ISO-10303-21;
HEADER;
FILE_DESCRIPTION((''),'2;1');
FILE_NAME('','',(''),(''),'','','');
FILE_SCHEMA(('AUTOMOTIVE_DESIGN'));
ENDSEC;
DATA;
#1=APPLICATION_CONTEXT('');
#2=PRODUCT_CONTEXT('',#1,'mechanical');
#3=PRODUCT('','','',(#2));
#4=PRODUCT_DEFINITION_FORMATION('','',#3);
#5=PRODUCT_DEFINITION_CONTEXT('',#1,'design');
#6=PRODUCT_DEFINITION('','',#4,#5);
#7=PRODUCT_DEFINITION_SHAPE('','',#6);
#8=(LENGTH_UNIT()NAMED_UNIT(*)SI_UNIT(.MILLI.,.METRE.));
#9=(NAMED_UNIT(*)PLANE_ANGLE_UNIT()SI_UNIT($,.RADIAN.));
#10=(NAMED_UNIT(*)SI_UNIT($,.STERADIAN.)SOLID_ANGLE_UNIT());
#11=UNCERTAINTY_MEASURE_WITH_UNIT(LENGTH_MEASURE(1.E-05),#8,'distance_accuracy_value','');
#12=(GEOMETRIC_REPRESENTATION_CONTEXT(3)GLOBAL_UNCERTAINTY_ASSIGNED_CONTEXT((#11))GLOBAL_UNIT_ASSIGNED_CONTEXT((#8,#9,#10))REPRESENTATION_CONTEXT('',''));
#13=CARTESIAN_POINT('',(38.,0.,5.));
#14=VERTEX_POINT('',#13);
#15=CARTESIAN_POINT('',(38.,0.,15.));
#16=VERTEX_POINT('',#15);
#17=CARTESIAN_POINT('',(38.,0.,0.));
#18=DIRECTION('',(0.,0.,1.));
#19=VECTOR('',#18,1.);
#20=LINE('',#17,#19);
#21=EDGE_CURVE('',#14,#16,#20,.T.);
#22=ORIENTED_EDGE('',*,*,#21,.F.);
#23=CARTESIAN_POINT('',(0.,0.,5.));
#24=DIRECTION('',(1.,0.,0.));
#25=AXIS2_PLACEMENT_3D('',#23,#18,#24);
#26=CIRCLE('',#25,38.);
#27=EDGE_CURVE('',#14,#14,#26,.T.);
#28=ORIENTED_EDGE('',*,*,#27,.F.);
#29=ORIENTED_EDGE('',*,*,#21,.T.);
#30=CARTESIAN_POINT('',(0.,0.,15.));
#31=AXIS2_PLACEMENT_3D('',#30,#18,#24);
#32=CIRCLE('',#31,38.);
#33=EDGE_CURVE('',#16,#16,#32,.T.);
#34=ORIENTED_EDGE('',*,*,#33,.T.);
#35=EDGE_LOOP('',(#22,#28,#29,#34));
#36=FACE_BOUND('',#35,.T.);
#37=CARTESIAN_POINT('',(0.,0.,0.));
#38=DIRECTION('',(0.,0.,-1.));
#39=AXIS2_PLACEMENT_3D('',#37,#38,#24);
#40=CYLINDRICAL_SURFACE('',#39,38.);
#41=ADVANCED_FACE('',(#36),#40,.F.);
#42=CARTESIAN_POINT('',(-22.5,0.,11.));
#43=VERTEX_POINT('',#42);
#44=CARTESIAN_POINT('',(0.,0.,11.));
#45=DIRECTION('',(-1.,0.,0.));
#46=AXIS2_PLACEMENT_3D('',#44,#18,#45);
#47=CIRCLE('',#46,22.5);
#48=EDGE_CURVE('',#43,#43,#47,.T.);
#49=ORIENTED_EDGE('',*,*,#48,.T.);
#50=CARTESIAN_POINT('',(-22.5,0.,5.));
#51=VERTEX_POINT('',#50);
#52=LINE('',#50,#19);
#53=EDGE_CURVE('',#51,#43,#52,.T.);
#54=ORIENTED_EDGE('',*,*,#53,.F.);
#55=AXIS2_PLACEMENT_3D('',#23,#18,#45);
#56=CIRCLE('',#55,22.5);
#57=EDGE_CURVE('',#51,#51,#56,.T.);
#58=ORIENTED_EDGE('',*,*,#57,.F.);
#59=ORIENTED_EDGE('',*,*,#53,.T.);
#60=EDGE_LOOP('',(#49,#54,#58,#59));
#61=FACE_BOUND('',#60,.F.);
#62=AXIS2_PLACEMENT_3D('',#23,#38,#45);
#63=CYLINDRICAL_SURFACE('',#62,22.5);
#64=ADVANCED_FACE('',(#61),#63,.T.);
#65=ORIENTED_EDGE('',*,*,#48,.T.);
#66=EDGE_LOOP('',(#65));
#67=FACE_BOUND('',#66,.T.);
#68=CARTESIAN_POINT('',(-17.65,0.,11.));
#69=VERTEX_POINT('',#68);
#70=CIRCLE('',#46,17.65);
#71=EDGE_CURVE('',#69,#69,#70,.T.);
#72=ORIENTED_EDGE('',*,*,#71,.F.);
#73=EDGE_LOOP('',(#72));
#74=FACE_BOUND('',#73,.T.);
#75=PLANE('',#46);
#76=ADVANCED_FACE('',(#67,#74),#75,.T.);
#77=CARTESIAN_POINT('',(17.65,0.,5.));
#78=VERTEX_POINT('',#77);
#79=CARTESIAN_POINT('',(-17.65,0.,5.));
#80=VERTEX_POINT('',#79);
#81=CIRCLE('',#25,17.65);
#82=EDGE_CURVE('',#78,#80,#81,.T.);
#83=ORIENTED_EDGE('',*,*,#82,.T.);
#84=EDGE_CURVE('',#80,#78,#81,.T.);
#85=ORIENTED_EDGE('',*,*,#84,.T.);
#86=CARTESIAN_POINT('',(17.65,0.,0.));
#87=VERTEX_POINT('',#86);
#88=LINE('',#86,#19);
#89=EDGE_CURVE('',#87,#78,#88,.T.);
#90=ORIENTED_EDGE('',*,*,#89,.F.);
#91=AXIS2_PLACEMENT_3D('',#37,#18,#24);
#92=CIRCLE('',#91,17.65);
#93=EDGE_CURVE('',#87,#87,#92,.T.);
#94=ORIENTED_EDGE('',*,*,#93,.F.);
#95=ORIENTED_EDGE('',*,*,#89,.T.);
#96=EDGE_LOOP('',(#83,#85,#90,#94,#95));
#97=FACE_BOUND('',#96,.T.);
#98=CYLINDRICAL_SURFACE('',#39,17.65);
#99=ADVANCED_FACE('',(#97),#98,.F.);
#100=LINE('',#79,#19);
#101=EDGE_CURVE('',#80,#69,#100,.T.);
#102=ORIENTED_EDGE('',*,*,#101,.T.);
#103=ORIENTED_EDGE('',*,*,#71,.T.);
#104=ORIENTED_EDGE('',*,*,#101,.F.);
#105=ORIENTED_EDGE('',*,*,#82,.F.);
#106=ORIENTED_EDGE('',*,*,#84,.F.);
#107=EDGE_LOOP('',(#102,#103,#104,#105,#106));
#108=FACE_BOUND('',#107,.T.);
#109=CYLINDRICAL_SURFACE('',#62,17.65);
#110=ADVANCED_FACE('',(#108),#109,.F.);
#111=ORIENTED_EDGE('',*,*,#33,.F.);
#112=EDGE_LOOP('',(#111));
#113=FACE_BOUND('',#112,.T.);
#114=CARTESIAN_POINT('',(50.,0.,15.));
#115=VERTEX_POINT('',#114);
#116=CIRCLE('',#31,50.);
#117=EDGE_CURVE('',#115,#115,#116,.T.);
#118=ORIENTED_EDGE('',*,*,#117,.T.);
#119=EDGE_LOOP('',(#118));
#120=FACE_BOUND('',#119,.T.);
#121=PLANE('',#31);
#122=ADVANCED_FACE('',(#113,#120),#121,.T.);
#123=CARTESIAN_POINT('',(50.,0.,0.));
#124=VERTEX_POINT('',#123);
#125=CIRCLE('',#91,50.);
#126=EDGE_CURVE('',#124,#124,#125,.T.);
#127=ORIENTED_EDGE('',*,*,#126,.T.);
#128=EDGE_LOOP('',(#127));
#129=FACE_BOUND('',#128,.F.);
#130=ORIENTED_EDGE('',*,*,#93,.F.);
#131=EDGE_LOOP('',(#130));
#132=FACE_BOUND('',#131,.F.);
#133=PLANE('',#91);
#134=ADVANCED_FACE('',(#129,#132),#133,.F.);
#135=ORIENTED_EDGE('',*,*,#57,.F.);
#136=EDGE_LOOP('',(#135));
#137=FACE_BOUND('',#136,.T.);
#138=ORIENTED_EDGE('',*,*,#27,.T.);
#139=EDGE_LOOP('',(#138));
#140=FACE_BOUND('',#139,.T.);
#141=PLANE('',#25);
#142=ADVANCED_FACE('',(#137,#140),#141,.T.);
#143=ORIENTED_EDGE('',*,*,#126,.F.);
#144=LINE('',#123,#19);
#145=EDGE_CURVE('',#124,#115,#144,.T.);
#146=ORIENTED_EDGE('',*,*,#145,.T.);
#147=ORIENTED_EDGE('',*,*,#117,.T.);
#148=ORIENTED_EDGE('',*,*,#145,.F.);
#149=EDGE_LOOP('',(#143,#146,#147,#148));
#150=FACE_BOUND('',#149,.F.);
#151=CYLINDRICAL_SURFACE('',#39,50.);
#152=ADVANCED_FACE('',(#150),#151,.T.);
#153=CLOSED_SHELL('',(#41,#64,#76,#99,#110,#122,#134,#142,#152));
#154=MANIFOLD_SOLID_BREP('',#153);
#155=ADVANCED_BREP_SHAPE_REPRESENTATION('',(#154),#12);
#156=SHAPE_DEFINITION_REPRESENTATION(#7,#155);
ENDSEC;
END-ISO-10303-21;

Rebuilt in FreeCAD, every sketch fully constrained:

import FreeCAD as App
import Part
import Sketcher

V = App.Vector

doc = App.newDocument("Part")
params = doc.addObject("Spreadsheet::Sheet", "Params")
for row, (alias, value) in enumerate([
    ("sketch1_diameter", "76 mm"),
    ("sketch1_diameter2", "35.3 mm"),
    ("pad1_length", "5 mm"),
    ("sketch2_diameter", "100 mm"),
    ("sketch2_diameter2", "76 mm"),
    ("pad2_length", "15 mm"),
    ("sketch3_diameter", "45 mm"),
    ("sketch3_diameter2", "35.3 mm"),
    ("pad3_length", "6 mm"),
], start=1):
    params.set(f"A{row}", alias)
    params.set(f"B{row}", "=" + value)
    params.setAlias(f"B{row}", alias)

body = doc.addObject("PartDesign::Body", "Body")

# Sketch on XY plane
sketch1 = body.newObject("Sketcher::SketchObject", "Sketch")
sketch1.AttachmentSupport = (doc.getObject("XY_Plane"), [""])
sketch1.MapMode = "FlatFace"
sketch1.addGeometry([
    Part.Circle(V(0, 0, 0), V(0, 0, 1), 38),
    Part.Circle(V(0, 0, 0), V(0, 0, 1), 18),
], False)
sketch1.addConstraint([
    Sketcher.Constraint("Coincident", 0, 3, -1, 1),
    Sketcher.Constraint("Coincident", 1, 3, -1, 1),
    Sketcher.Constraint("Diameter", 0, 76.0),
    Sketcher.Constraint("Diameter", 1, 35.3),
])
sketch1.setExpression("Constraints[2]", "Params.sketch1_diameter")
sketch1.setExpression("Constraints[3]", "Params.sketch1_diameter2")
pad1 = body.newObject("PartDesign::Pad", "Pad")
pad1.Profile = sketch1
pad1.setExpression("Length", "Params.pad1_length")

# Sketch on XY plane
sketch2 = body.newObject("Sketcher::SketchObject", "Sketch001")
sketch2.AttachmentSupport = (doc.getObject("XY_Plane"), [""])
sketch2.MapMode = "FlatFace"
sketch2.addGeometry([
    Part.Circle(V(0, 0, 0), V(0, 0, 1), 50),
    Part.Circle(V(0, 0, 0), V(0, 0, 1), 38),
], False)
sketch2.addConstraint([
    Sketcher.Constraint("Coincident", 0, 3, -1, 1),
    Sketcher.Constraint("Coincident", 1, 3, -1, 1),
    Sketcher.Constraint("Diameter", 0, 100.0),
    Sketcher.Constraint("Diameter", 1, 76.0),
])
sketch2.setExpression("Constraints[2]", "Params.sketch2_diameter")
sketch2.setExpression("Constraints[3]", "Params.sketch2_diameter2")
pad2 = body.newObject("PartDesign::Pad", "Pad001")
pad2.Profile = sketch2
pad2.setExpression("Length", "Params.pad2_length")

# Sketch on XY plane
sketch3 = body.newObject("Sketcher::SketchObject", "Sketch002")
sketch3.AttachmentSupport = (doc.getObject("XY_Plane"), [""])
sketch3.MapMode = "FlatFace"
sketch3.AttachmentOffset = App.Placement(V(0, 0, 5), App.Rotation())
sketch3.addGeometry([
    Part.Circle(V(0, 0, 0), V(0, 0, 1), 22),
    Part.Circle(V(0, 0, 0), V(0, 0, 1), 18),
], False)
sketch3.addConstraint([
    Sketcher.Constraint("Coincident", 0, 3, -1, 1),
    Sketcher.Constraint("Coincident", 1, 3, -1, 1),
    Sketcher.Constraint("Diameter", 0, 45.0),
    Sketcher.Constraint("Diameter", 1, 35.3),
])
sketch3.setExpression("Constraints[2]", "Params.sketch3_diameter")
sketch3.setExpression("Constraints[3]", "Params.sketch3_diameter2")
pad3 = body.newObject("PartDesign::Pad", "Pad002")
pad3.Profile = sketch3
pad3.setExpression("Length", "Params.pad3_length")

doc.recompute()
